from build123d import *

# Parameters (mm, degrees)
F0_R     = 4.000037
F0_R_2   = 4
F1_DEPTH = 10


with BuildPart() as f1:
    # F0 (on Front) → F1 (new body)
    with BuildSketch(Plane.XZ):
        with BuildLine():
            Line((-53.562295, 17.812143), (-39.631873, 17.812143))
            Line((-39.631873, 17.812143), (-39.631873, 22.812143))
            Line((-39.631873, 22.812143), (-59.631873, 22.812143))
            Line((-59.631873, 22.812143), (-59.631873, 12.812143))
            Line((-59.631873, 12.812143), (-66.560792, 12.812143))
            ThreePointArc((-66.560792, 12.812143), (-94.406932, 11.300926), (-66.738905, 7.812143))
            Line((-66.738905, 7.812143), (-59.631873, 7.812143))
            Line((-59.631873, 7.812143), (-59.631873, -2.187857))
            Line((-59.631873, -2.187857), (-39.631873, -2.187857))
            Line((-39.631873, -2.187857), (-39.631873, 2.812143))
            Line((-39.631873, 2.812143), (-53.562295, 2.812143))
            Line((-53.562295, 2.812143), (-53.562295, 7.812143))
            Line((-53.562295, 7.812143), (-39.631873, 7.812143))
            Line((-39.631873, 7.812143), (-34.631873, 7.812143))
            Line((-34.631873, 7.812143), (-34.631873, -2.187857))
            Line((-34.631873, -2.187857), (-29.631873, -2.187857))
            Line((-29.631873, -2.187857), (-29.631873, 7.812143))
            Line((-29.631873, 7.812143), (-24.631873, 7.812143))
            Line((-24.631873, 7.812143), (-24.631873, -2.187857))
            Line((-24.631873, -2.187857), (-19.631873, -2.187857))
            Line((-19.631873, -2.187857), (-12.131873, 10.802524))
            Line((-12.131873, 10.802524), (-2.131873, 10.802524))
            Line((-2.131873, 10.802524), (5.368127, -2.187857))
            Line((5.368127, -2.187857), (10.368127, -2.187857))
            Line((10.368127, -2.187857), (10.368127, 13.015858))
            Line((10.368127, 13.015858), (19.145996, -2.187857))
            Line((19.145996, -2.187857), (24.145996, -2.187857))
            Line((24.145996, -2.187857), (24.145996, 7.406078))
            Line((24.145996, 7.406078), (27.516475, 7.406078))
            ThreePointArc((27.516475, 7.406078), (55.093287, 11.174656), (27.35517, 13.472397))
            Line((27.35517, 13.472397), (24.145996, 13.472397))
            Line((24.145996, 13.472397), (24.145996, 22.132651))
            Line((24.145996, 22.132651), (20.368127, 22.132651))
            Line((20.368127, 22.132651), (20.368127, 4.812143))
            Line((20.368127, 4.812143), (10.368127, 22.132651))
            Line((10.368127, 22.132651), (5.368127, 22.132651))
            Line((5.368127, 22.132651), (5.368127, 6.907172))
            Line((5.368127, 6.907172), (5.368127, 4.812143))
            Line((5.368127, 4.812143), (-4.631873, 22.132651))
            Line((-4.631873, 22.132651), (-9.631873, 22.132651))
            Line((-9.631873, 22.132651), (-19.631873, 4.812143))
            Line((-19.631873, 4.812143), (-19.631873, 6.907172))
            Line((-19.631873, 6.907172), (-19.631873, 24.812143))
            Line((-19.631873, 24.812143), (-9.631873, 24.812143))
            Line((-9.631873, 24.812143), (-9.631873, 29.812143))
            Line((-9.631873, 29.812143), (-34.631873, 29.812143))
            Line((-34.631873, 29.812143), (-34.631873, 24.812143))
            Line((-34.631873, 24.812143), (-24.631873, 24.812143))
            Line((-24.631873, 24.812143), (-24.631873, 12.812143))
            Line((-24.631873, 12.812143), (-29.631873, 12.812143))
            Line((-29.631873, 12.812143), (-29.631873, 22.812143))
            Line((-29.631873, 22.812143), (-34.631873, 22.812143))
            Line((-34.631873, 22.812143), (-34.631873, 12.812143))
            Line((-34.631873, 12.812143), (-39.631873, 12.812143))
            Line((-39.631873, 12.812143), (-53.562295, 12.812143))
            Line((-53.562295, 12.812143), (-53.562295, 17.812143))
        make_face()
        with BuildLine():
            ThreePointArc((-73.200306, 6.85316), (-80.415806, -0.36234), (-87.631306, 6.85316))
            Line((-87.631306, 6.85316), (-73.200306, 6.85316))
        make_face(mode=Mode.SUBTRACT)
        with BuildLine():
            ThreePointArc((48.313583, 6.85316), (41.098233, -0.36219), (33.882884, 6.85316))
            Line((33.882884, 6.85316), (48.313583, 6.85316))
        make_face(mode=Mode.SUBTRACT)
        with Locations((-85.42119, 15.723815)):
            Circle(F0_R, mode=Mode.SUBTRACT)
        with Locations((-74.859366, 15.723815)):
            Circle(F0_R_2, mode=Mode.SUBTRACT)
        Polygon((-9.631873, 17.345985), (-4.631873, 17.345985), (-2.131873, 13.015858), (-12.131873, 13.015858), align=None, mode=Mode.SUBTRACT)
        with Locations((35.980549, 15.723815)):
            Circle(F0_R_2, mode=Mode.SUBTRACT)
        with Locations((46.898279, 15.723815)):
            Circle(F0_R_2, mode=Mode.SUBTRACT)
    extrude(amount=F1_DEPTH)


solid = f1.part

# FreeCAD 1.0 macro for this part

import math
import FreeCAD as App
import Part
import Sketcher

V = App.Vector
Q = App.Units.Quantity


def add_polygon(sketch, points):
    """Adds a closed chain of lines whose ends are joined by coincident constraints."""
    first, n = sketch.GeometryCount, len(points)
    for a, b in zip(points, points[1:] + points[:1]):
        sketch.addGeometry(Part.LineSegment(App.Vector(*a, 0), App.Vector(*b, 0)), False)
    for i in range(n):
        sketch.addConstraint(Sketcher.Constraint("Coincident", first + i, 2, first + (i + 1) % n, 1))

doc = App.newDocument("Part")
body = doc.addObject("PartDesign::Body", "Body")

# Sketch on XZ plane
sketch1 = doc.addObject("Sketcher::SketchObject", "Sketch")
body.addObject(sketch1)
sketch1.AttachmentSupport = (doc.XZ_Plane, [""])
sketch1.MapMode = "FlatFace"
sketch1.addGeometry(Part.LineSegment(V(-53.562295, 17.812143, 0), V(-39.631873, 17.812143, 0)), False)  # 0
sketch1.addGeometry(Part.LineSegment(V(-39.631873, 17.812143, 0), V(-39.631873, 22.812143, 0)), False)  # 1
sketch1.addGeometry(Part.LineSegment(V(-39.631873, 22.812143, 0), V(-59.631873, 22.812143, 0)), False)  # 2
sketch1.addGeometry(Part.LineSegment(V(-59.631873, 22.812143, 0), V(-59.631873, 12.812143, 0)), False)  # 3
sketch1.addGeometry(Part.LineSegment(V(-59.631873, 12.812143, 0), V(-66.560792, 12.812143, 0)), False)  # 4
sketch1.addGeometry(Part.ArcOfCircle(Part.Circle(V(-80.415806, 10.802522, 0), V(0, 0, 1), 14), math.radians(8.252994), math.radians(347.666682)), False)  # 5
sketch1.addGeometry(Part.LineSegment(V(-66.738905, 7.812143, 0), V(-59.631873, 7.812143, 0)), False)  # 6
sketch1.addGeometry(Part.LineSegment(V(-59.631873, 7.812143, 0), V(-59.631873, -2.187857, 0)), False)  # 7
sketch1.addGeometry(Part.LineSegment(V(-59.631873, -2.187857, 0), V(-39.631873, -2.187857, 0)), False)  # 8
sketch1.addGeometry(Part.LineSegment(V(-39.631873, -2.187857, 0), V(-39.631873, 2.812143, 0)), False)  # 9
sketch1.addGeometry(Part.LineSegment(V(-39.631873, 2.812143, 0), V(-53.562295, 2.812143, 0)), False)  # 10
sketch1.addGeometry(Part.LineSegment(V(-53.562295, 2.812143, 0), V(-53.562295, 7.812143, 0)), False)  # 11
sketch1.addGeometry(Part.LineSegment(V(-53.562295, 7.812143, 0), V(-34.631873, 7.812143, 0)), False)  # 12
sketch1.addGeometry(Part.LineSegment(V(-34.631873, 7.812143, 0), V(-34.631873, -2.187857, 0)), False)  # 13
sketch1.addGeometry(Part.LineSegment(V(-34.631873, -2.187857, 0), V(-29.631873, -2.187857, 0)), False)  # 14
sketch1.addGeometry(Part.LineSegment(V(-29.631873, -2.187857, 0), V(-29.631873, 7.812143, 0)), False)  # 15
sketch1.addGeometry(Part.LineSegment(V(-29.631873, 7.812143, 0), V(-24.631873, 7.812143, 0)), False)  # 16
sketch1.addGeometry(Part.LineSegment(V(-24.631873, 7.812143, 0), V(-24.631873, -2.187857, 0)), False)  # 17
sketch1.addGeometry(Part.LineSegment(V(-24.631873, -2.187857, 0), V(-19.631873, -2.187857, 0)), False)  # 18
sketch1.addGeometry(Part.LineSegment(V(-19.631873, -2.187857, 0), V(-12.131873, 10.802524, 0)), False)  # 19
sketch1.addGeometry(Part.LineSegment(V(-12.131873, 10.802524, 0), V(-2.131873, 10.802524, 0)), False)  # 20
sketch1.addGeometry(Part.LineSegment(V(-2.131873, 10.802524, 0), V(5.368127, -2.187857, 0)), False)  # 21
sketch1.addGeometry(Part.LineSegment(V(5.368127, -2.187857, 0), V(10.368127, -2.187857, 0)), False)  # 22
sketch1.addGeometry(Part.LineSegment(V(10.368127, -2.187857, 0), V(10.368127, 13.015858, 0)), False)  # 23
sketch1.addGeometry(Part.LineSegment(V(10.368127, 13.015858, 0), V(19.145996, -2.187857, 0)), False)  # 24
sketch1.addGeometry(Part.LineSegment(V(19.145996, -2.187857, 0), V(24.145996, -2.187857, 0)), False)  # 25
sketch1.addGeometry(Part.LineSegment(V(24.145996, -2.187857, 0), V(24.145996, 7.406078, 0)), False)  # 26
sketch1.addGeometry(Part.LineSegment(V(24.145996, 7.406078, 0), V(27.516475, 7.406078, 0)), False)  # 27
sketch1.addGeometry(Part.ArcOfCircle(Part.Circle(V(41.098233, 10.802525, 0), V(0, 0, 1), 14), math.radians(-165.959758), math.radians(169.00606)), False)  # 28
sketch1.addGeometry(Part.LineSegment(V(27.35517, 13.472397, 0), V(24.145996, 13.472397, 0)), False)  # 29
sketch1.addGeometry(Part.LineSegment(V(24.145996, 13.472397, 0), V(24.145996, 22.132651, 0)), False)  # 30
sketch1.addGeometry(Part.LineSegment(V(24.145996, 22.132651, 0), V(20.368127, 22.132651, 0)), False)  # 31
sketch1.addGeometry(Part.LineSegment(V(20.368127, 22.132651, 0), V(20.368127, 4.812143, 0)), False)  # 32
sketch1.addGeometry(Part.LineSegment(V(20.368127, 4.812143, 0), V(10.368127, 22.132651, 0)), False)  # 33
sketch1.addGeometry(Part.LineSegment(V(10.368127, 22.132651, 0), V(5.368127, 22.132651, 0)), False)  # 34
sketch1.addGeometry(Part.LineSegment(V(5.368127, 22.132651, 0), V(5.368127, 4.812143, 0)), False)  # 35
sketch1.addGeometry(Part.LineSegment(V(5.368127, 4.812143, 0), V(-4.631873, 22.132651, 0)), False)  # 36
sketch1.addGeometry(Part.LineSegment(V(-4.631873, 22.132651, 0), V(-9.631873, 22.132651, 0)), False)  # 37
sketch1.addGeometry(Part.LineSegment(V(-9.631873, 22.132651, 0), V(-19.631873, 4.812143, 0)), False)  # 38
sketch1.addGeometry(Part.LineSegment(V(-19.631873, 4.812143, 0), V(-19.631873, 24.812143, 0)), False)  # 39
sketch1.addGeometry(Part.LineSegment(V(-19.631873, 24.812143, 0), V(-9.631873, 24.812143, 0)), False)  # 40
sketch1.addGeometry(Part.LineSegment(V(-9.631873, 24.812143, 0), V(-9.631873, 29.812143, 0)), False)  # 41
sketch1.addGeometry(Part.LineSegment(V(-9.631873, 29.812143, 0), V(-34.631873, 29.812143, 0)), False)  # 42
sketch1.addGeometry(Part.LineSegment(V(-34.631873, 29.812143, 0), V(-34.631873, 24.812143, 0)), False)  # 43
sketch1.addGeometry(Part.LineSegment(V(-34.631873, 24.812143, 0), V(-24.631873, 24.812143, 0)), False)  # 44
sketch1.addGeometry(Part.LineSegment(V(-24.631873, 24.812143, 0), V(-24.631873, 12.812143, 0)), False)  # 45
sketch1.addGeometry(Part.LineSegment(V(-24.631873, 12.812143, 0), V(-29.631873, 12.812143, 0)), False)  # 46
sketch1.addGeometry(Part.LineSegment(V(-29.631873, 12.812143, 0), V(-29.631873, 22.812143, 0)), False)  # 47
sketch1.addGeometry(Part.LineSegment(V(-29.631873, 22.812143, 0), V(-34.631873, 22.812143, 0)), False)  # 48
sketch1.addGeometry(Part.LineSegment(V(-34.631873, 22.812143, 0), V(-34.631873, 12.812143, 0)), False)  # 49
sketch1.addGeometry(Part.LineSegment(V(-34.631873, 12.812143, 0), V(-53.562295, 12.812143, 0)), False)  # 50
sketch1.addGeometry(Part.LineSegment(V(-53.562295, 12.812143, 0), V(-53.562295, 17.812143, 0)), False)  # 51
sketch1.addGeometry(Part.LineSegment(V(-87.631306, 6.85316, 0), V(-73.200306, 6.85316, 0)), False)  # 52
sketch1.addGeometry(Part.ArcOfCircle(Part.Circle(V(-80.415806, 6.85316, 0), V(0, 0, 1), 7.2155), math.radians(180), math.radians(360)), False)  # 53
sketch1.addGeometry(Part.LineSegment(V(33.882884, 6.85316, 0), V(48.313583, 6.85316, 0)), False)  # 54
sketch1.addGeometry(Part.ArcOfCircle(Part.Circle(V(41.098233, 6.85316, 0), V(0, 0, 1), 7.21535), math.radians(179.999996), math.radians(360.000004)), False)  # 55
sketch1.addGeometry(Part.Circle(V(-85.42119, 15.723815, 0), V(0, 0, 1), 4.000037), False)  # 56
sketch1.addGeometry(Part.Circle(V(-74.859366, 15.723815, 0), V(0, 0, 1), 4), False)  # 57
add_polygon(sketch1, [(-12.131873, 13.015858), (-9.631873, 17.345985), (-4.631873, 17.345985), (-2.131873, 13.015858)])  # lines 58-61
sketch1.addGeometry(Part.Circle(V(35.980549, 15.723815, 0), V(0, 0, 1), 4), False)  # 62
sketch1.addGeometry(Part.Circle(V(46.898279, 15.723815, 0), V(0, 0, 1), 4), False)  # 63
sketch1.addConstraint([
    Sketcher.Constraint("Coincident", 0, 2, 1, 1),
    Sketcher.Constraint("Coincident", 1, 2, 2, 1),
    Sketcher.Constraint("Coincident", 2, 2, 3, 1),
    Sketcher.Constraint("Coincident", 3, 2, 4, 1),
    Sketcher.Constraint("Coincident", 4, 2, 5, 1),
    Sketcher.Constraint("Coincident", 5, 2, 6, 1),
    Sketcher.Constraint("Coincident", 6, 2, 7, 1),
    Sketcher.Constraint("Coincident", 7, 2, 8, 1),
    Sketcher.Constraint("Coincident", 8, 2, 9, 1),
    Sketcher.Constraint("Coincident", 9, 2, 10, 1),
    Sketcher.Constraint("Coincident", 10, 2, 11, 1),
    Sketcher.Constraint("Coincident", 11, 2, 12, 1),
    Sketcher.Constraint("Coincident", 12, 2, 13, 1),
    Sketcher.Constraint("Coincident", 13, 2, 14, 1),
    Sketcher.Constraint("Coincident", 14, 2, 15, 1),
    Sketcher.Constraint("Coincident", 15, 2, 16, 1),
    Sketcher.Constraint("Coincident", 16, 2, 17, 1),
    Sketcher.Constraint("Coincident", 17, 2, 18, 1),
    Sketcher.Constraint("Coincident", 18, 2, 19, 1),
    Sketcher.Constraint("Coincident", 19, 2, 20, 1),
    Sketcher.Constraint("Coincident", 20, 2, 21, 1),
    Sketcher.Constraint("Coincident", 21, 2, 22, 1),
    Sketcher.Constraint("Coincident", 22, 2, 23, 1),
    Sketcher.Constraint("Coincident", 23, 2, 24, 1),
    Sketcher.Constraint("Coincident", 24, 2, 25, 1),
    Sketcher.Constraint("Coincident", 25, 2, 26, 1),
    Sketcher.Constraint("Coincident", 26, 2, 27, 1),
    Sketcher.Constraint("Coincident", 27, 2, 28, 1),
    Sketcher.Constraint("Coincident", 28, 2, 29, 1),
    Sketcher.Constraint("Coincident", 29, 2, 30, 1),
    Sketcher.Constraint("Coincident", 30, 2, 31, 1),
    Sketcher.Constraint("Coincident", 31, 2, 32, 1),
    Sketcher.Constraint("Coincident", 32, 2, 33, 1),
    Sketcher.Constraint("Coincident", 33, 2, 34, 1),
    Sketcher.Constraint("Coincident", 34, 2, 35, 1),
    Sketcher.Constraint("Coincident", 35, 2, 36, 1),
    Sketcher.Constraint("Coincident", 36, 2, 37, 1),
    Sketcher.Constraint("Coincident", 37, 2, 38, 1),
    Sketcher.Constraint("Coincident", 38, 2, 39, 1),
    Sketcher.Constraint("Coincident", 39, 2, 40, 1),
    Sketcher.Constraint("Coincident", 40, 2, 41, 1),
    Sketcher.Constraint("Coincident", 41, 2, 42, 1),
    Sketcher.Constraint("Coincident", 42, 2, 43, 1),
    Sketcher.Constraint("Coincident", 43, 2, 44, 1),
    Sketcher.Constraint("Coincident", 44, 2, 45, 1),
    Sketcher.Constraint("Coincident", 45, 2, 46, 1),
    Sketcher.Constraint("Coincident", 46, 2, 47, 1),
    Sketcher.Constraint("Coincident", 47, 2, 48, 1),
    Sketcher.Constraint("Coincident", 48, 2, 49, 1),
    Sketcher.Constraint("Coincident", 49, 2, 50, 1),
    Sketcher.Constraint("Coincident", 50, 2, 51, 1),
    Sketcher.Constraint("Coincident", 51, 2, 0, 1),
    Sketcher.Constraint("Coincident", 52, 1, 53, 1),
    Sketcher.Constraint("Coincident", 53, 2, 52, 2),
    Sketcher.Constraint("Coincident", 54, 1, 55, 1),
    Sketcher.Constraint("Coincident", 55, 2, 54, 2),
    Sketcher.Constraint("Horizontal", 0),
    Sketcher.Constraint("Vertical", 1),
    Sketcher.Constraint("Horizontal", 2),
    Sketcher.Constraint("Vertical", 3),
    Sketcher.Constraint("Horizontal", 4),
    Sketcher.Constraint("Horizontal", 6),
    Sketcher.Constraint("Vertical", 7),
    Sketcher.Constraint("Horizontal", 8),
    Sketcher.Constraint("Vertical", 9),
    Sketcher.Constraint("Horizontal", 10),
    Sketcher.Constraint("Vertical", 11),
    Sketcher.Constraint("Horizontal", 12),
    Sketcher.Constraint("Vertical", 13),
    Sketcher.Constraint("Horizontal", 14),
    Sketcher.Constraint("Vertical", 15),
    Sketcher.Constraint("Horizontal", 16),
    Sketcher.Constraint("Vertical", 17),
    Sketcher.Constraint("Horizontal", 18),
    Sketcher.Constraint("Horizontal", 20),
    Sketcher.Constraint("Horizontal", 22),
    Sketcher.Constraint("Vertical", 23),
    Sketcher.Constraint("Horizontal", 25),
    Sketcher.Constraint("Vertical", 26),
    Sketcher.Constraint("Horizontal", 27),
    Sketcher.Constraint("Horizontal", 29),
    Sketcher.Constraint("Vertical", 30),
    Sketcher.Constraint("Horizontal", 31),
    Sketcher.Constraint("Vertical", 32),
    Sketcher.Constraint("Horizontal", 34),
    Sketcher.Constraint("Vertical", 35),
    Sketcher.Constraint("Horizontal", 37),
    Sketcher.Constraint("Vertical", 39),
    Sketcher.Constraint("Horizontal", 40),
    Sketcher.Constraint("Vertical", 41),
    Sketcher.Constraint("Horizontal", 42),
    Sketcher.Constraint("Vertical", 43),
    Sketcher.Constraint("Horizontal", 44),
    Sketcher.Constraint("Vertical", 45),
    Sketcher.Constraint("Horizontal", 46),
    Sketcher.Constraint("Vertical", 47),
    Sketcher.Constraint("Horizontal", 48),
    Sketcher.Constraint("Vertical", 49),
    Sketcher.Constraint("Horizontal", 50),
    Sketcher.Constraint("Vertical", 51),
    Sketcher.Constraint("Horizontal", 52),
    Sketcher.Constraint("Horizontal", 54),
    Sketcher.Constraint("Horizontal", 59),
    Sketcher.Constraint("Horizontal", 61),
    Sketcher.Constraint("Equal", 5, 28),
    Sketcher.Constraint("Equal", 57, 62),
    Sketcher.Constraint("Equal", 62, 63),
    Sketcher.Constraint("Parallel", 21, 24),
    Sketcher.Constraint("Parallel", 24, 33),
    Sketcher.Constraint("Parallel", 33, 36),
    Sketcher.Constraint("Parallel", 19, 38),
    Sketcher.Constraint("Parallel", 38, 58),
    Sketcher.Constraint("Parallel", 36, 60),
    Sketcher.Constraint("Horizontal", 53, 3, 55, 3),
    Sketcher.Constraint("Horizontal", 56, 3, 57, 3),
    Sketcher.Constraint("Horizontal", 57, 3, 62, 3),
    Sketcher.Constraint("Horizontal", 62, 3, 63, 3),
    Sketcher.Constraint("Horizontal", 6, 2, 11, 2),
    Sketcher.Constraint("Horizontal", 8, 2, 13, 2),
    Sketcher.Constraint("Horizontal", 12, 2, 15, 2),
    Sketcher.Constraint("Horizontal", 14, 2, 17, 2),
    Sketcher.Constraint("Horizontal", 28, 3, 19, 2),
    Sketcher.Constraint("Horizontal", 18, 2, 21, 2),
    Sketcher.Constraint("Horizontal", 22, 2, 24, 2),
    Sketcher.Constraint("Horizontal", 31, 2, 33, 2),
    Sketcher.Constraint("Horizontal", 32, 2, 35, 2),
    Sketcher.Constraint("Horizontal", 34, 2, 36, 2),
    Sketcher.Constraint("Horizontal", 35, 2, 38, 2),
    Sketcher.Constraint("Horizontal", 40, 2, 43, 2),
    Sketcher.Constraint("Horizontal", 4, 2, 45, 2),
    Sketcher.Constraint("Horizontal", 2, 2, 47, 2),
    Sketcher.Constraint("Horizontal", 46, 2, 49, 2),
    Sketcher.Constraint("Horizontal", 55, 3, 52, 1),
    Sketcher.Constraint("Horizontal", 53, 2, 54, 1),
    Sketcher.Constraint("Horizontal", 23, 2, 60, 2),
    Sketcher.Constraint("Vertical", 5, 3, 53, 3),
    Sketcher.Constraint("Vertical", 28, 3, 55, 3),
    Sketcher.Constraint("Vertical", 3, 2, 6, 2),
    Sketcher.Constraint("Vertical", 1, 2, 8, 2),
    Sketcher.Constraint("Vertical", 26, 2, 29, 2),
    Sketcher.Constraint("Vertical", 23, 2, 33, 2),
    Sketcher.Constraint("Vertical", 21, 2, 34, 2),
    Sketcher.Constraint("Vertical", 18, 2, 38, 2),
    Sketcher.Constraint("Vertical", 37, 2, 40, 2),
    Sketcher.Constraint("Vertical", 13, 2, 42, 2),
    Sketcher.Constraint("Vertical", 17, 2, 44, 2),
    Sketcher.Constraint("Vertical", 15, 2, 46, 2),
    Sketcher.Constraint("Vertical", 43, 2, 48, 2),
    Sketcher.Constraint("Vertical", 11, 2, 50, 2),
    Sketcher.Constraint("Vertical", 41, 2, 58, 2),
    Sketcher.Constraint("Vertical", 36, 2, 59, 2),
    Sketcher.Constraint("Vertical", 20, 2, 60, 2),
    Sketcher.Constraint("Equal", 14, 16),
    Sketcher.Constraint("Equal", 16, 18),
    Sketcher.Constraint("Equal", 18, 22),
    Sketcher.Constraint("Equal", 22, 25),
    Sketcher.Constraint("Equal", 34, 37),
    Sketcher.Constraint("Equal", 20, 40),
    Sketcher.Constraint("Equal", 40, 44),
    Sketcher.Constraint("Equal", 59, 1),
    Sketcher.Constraint("Equal", 61, 3),
    Sketcher.Constraint("Equal", 3, 7),
    Sketcher.Constraint("Equal", 1, 9),
    Sketcher.Constraint("Equal", 8, 39),
    Sketcher.Constraint("Equal", 11, 41),
    Sketcher.Constraint("Equal", 19, 21),
    Sketcher.Constraint("Diameter", 57, Q("8 mm")),
    Sketcher.Constraint("Radius", 5, Q("14 mm")),
    Sketcher.Constraint("DistanceX", 2, 2, 2, 1, Q("20 mm")),
    Sketcher.Constraint("DistanceX", 14, 1, 14, 2, Q("5 mm")),
    Sketcher.Constraint("DistanceY", 45, 2, 45, 1, Q("12 mm")),
    Sketcher.Constraint("Angle", 19, Q("60 deg")),
    Sketcher.Constraint("Radius", 53, Q("7.2155 mm")),
    Sketcher.Constraint("Radius", 55, Q("7.21535 mm")),
    Sketcher.Constraint("Diameter", 56, Q("8.000074 mm")),
    Sketcher.Constraint("DistanceX", 4, 2, 4, 1, Q("6.928919 mm")),
    Sketcher.Constraint("DistanceX", 12, 1, 12, 2, Q("18.930422 mm")),
    Sketcher.Constraint("DistanceX", 27, 1, 27, 2, Q("3.370479 mm")),
    Sketcher.Constraint("DistanceX", 31, 2, 31, 1, Q("3.777869 mm")),
    Sketcher.Constraint("DistanceX", 0, 1, 0, 2, Q("13.930422 mm")),
    Sketcher.Constraint("DistanceX", 6, 1, 6, 2, Q("7.107032 mm")),
    Sketcher.Constraint("DistanceX", 29, 2, 29, 1, Q("3.209174 mm")),
    Sketcher.Constraint("DistanceY", 26, 1, 26, 2, Q("9.593935 mm")),
    Sketcher.Constraint("DistanceY", 30, 1, 30, 2, Q("8.660254 mm")),
    Sketcher.Constraint("DistanceY", -1, 1, 53, 3, Q("6.85316 mm")),
    Sketcher.Constraint("DistanceX", 56, 3, -1, 1, Q("85.42119 mm")),
    Sketcher.Constraint("DistanceX", -1, 1, 62, 3, Q("35.980549 mm")),
    Sketcher.Constraint("DistanceX", -1, 1, 63, 3, Q("46.898279 mm")),
    Sketcher.Constraint("DistanceX", -1, 1, 28, 2, Q("27.35517 mm")),
    Sketcher.Constraint("DistanceY", -1, 1, 30, 2, Q("22.132651 mm")),
    Sketcher.Constraint("DistanceY", -1, 1, 56, 3, Q("15.723815 mm")),
    Sketcher.Constraint("DistanceX", 57, 3, -1, 1, Q("74.859366 mm")),
])
pad1 = doc.addObject("PartDesign::Pad", "Pad")
body.addObject(pad1)
pad1.Profile = sketch1
pad1.Length = 10

doc.recompute()
